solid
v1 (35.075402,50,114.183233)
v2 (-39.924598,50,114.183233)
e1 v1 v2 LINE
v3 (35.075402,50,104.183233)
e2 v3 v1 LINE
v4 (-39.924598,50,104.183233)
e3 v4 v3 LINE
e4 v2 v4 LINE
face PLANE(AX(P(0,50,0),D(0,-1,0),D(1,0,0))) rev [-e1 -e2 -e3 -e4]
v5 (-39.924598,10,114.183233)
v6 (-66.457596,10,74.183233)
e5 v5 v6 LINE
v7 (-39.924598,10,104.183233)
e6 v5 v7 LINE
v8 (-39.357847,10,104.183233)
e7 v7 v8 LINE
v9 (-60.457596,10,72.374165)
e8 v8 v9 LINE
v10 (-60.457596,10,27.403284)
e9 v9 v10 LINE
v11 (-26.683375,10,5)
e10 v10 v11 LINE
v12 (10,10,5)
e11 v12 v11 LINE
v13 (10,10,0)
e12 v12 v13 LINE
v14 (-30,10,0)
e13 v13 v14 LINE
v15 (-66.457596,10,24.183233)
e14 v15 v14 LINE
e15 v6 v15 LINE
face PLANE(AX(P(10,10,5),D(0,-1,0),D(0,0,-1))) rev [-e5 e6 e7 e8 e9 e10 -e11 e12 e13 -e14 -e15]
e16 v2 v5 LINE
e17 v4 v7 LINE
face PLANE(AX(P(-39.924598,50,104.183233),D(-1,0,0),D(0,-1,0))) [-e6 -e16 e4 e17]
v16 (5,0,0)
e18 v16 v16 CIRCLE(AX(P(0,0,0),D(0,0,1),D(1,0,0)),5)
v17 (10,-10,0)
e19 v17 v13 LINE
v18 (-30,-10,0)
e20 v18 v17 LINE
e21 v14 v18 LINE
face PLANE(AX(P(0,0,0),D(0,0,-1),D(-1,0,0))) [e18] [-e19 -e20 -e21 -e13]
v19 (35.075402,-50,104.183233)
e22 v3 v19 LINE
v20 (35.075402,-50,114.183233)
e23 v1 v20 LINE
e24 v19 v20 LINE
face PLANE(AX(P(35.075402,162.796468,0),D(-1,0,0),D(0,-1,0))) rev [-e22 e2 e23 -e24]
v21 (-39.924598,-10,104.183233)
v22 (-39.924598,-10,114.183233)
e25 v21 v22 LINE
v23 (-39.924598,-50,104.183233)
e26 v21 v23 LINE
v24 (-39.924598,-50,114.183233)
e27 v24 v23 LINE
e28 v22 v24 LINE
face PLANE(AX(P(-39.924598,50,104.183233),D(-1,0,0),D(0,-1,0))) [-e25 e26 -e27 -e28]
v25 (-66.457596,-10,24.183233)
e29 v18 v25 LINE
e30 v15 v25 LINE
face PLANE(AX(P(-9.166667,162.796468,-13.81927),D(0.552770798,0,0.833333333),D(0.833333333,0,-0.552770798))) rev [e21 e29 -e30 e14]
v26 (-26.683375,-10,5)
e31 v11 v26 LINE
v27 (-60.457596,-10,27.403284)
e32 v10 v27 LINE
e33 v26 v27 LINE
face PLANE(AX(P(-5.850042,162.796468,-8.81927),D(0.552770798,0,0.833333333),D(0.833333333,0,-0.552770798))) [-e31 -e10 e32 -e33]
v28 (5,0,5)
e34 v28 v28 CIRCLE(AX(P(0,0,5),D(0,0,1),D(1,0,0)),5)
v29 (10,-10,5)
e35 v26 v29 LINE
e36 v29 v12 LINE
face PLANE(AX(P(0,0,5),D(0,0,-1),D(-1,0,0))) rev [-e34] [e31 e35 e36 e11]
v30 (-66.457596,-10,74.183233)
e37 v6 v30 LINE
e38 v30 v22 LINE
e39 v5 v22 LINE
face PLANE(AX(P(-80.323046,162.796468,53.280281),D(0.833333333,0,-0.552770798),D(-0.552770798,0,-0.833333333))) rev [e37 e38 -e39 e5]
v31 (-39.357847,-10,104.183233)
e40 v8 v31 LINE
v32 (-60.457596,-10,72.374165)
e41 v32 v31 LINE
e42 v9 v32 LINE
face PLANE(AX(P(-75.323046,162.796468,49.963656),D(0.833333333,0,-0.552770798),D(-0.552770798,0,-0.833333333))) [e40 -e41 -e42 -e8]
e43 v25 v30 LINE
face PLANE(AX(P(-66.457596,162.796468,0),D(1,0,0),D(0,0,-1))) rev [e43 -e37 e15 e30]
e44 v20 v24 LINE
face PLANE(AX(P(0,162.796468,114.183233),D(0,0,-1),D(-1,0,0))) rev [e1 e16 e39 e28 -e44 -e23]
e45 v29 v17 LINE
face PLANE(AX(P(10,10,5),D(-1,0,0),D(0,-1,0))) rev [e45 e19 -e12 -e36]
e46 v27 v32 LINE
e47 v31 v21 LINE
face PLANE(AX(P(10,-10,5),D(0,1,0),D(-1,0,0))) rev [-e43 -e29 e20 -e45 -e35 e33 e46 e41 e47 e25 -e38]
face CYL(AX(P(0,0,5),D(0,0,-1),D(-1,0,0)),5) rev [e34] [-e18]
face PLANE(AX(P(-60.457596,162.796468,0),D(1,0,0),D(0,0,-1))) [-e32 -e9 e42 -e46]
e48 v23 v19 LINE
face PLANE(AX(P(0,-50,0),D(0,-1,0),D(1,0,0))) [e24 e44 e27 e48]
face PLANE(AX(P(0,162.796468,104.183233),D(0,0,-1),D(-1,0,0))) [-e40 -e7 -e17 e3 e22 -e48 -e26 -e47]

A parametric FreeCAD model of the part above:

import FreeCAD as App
import Part
import Sketcher
from FreeCAD import Vector

doc = App.newDocument("Part")
params = doc.addObject("Spreadsheet::Sheet", "Params")
for row, (alias, value) in enumerate([
    ("sketch1_diameter", "10 mm"),
    ("sketch1_width", "20 mm"),
    ("pad1_length", "5 mm"),
    ("sketch2_width", "20 mm"),
    ("sketch2_height", "5 mm"),
    ("pad2_length", "20 mm"),
    ("sketch3_width", "75 mm"),
    ("sketch3_height", "50 mm"),
    ("sketch3_height2", "5 mm"),
    ("sketch3_height3", "10 mm"),
    ("sketch3_length", "48 mm"),
    ("pad3_length", "20 mm"),
    ("sketch4_width", "75 mm"),
    ("sketch4_height", "10 mm"),
    ("pad4_length", "40 mm"),
    ("pad4_length2", "60 mm"),
], start=1):
    params.set(f"A{row}", alias)
    params.set(f"B{row}", "=" + value)
    params.setAlias(f"B{row}", alias)

body = doc.addObject("PartDesign::Body", "Body")

# Sketch on XY plane
sketch1 = body.newObject("Sketcher::SketchObject", "Sketch")
sketch1.AttachmentSupport = (doc.getObject("XY_Plane"), [""])
sketch1.MapMode = "FlatFace"
sketch1.addGeometry(Part.LineSegment(Vector(-10, 10, 0), Vector(-10, -10, 0)), False)
sketch1.addGeometry(Part.LineSegment(Vector(-10, -10, 0), Vector(10, -10, 0)), False)
sketch1.addGeometry(Part.LineSegment(Vector(10, -10, 0), Vector(10, 10, 0)), False)
sketch1.addGeometry(Part.LineSegment(Vector(10, 10, 0), Vector(-10, 10, 0)), False)
sketch1.addGeometry(Part.Circle(Vector(0, 0, 0), Vector(0, 0, 1), 5), False)
sketch1.addConstraint(Sketcher.Constraint("Coincident", 0, 2, 1, 1))
sketch1.addConstraint(Sketcher.Constraint("Coincident", 1, 2, 2, 1))
sketch1.addConstraint(Sketcher.Constraint("Coincident", 2, 2, 3, 1))
sketch1.addConstraint(Sketcher.Constraint("Coincident", 3, 2, 0, 1))
sketch1.addConstraint(Sketcher.Constraint("Vertical", 0))
sketch1.addConstraint(Sketcher.Constraint("Horizontal", 1))
sketch1.addConstraint(Sketcher.Constraint("Vertical", 2))
sketch1.addConstraint(Sketcher.Constraint("Horizontal", 3))
sketch1.addConstraint(Sketcher.Constraint("Coincident", 4, 3, -1, 1))
sketch1.addConstraint(Sketcher.Constraint("Symmetric", 0, 2, 2, 2, -1, 1))
sketch1.addConstraint(Sketcher.Constraint("Equal", 3, 0))
sketch1.addConstraint(Sketcher.Constraint("Diameter", 4, 10.0))
sketch1.addConstraint(Sketcher.Constraint("DistanceX", 1, 1, 1, 2, 20.0))
sketch1.setExpression("Constraints[11]", "Params.sketch1_diameter")
sketch1.setExpression("Constraints[12]", "Params.sketch1_width")
pad1 = body.newObject("PartDesign::Pad", "Pad")
pad1.Profile = sketch1
pad1.setExpression("Length", "Params.pad1_length")

# Sketch on YZ plane
sketch2 = body.newObject("Sketcher::SketchObject", "Sketch001")
sketch2.AttachmentSupport = (doc.getObject("YZ_Plane"), [""])
sketch2.MapMode = "FlatFace"
sketch2.AttachmentOffset = App.Placement(Vector(0, 0, -10), App.Rotation())
sketch2.addGeometry(Part.LineSegment(Vector(10, 0, 0), Vector(-10, 0, 0)), False)
sketch2.addGeometry(Part.LineSegment(Vector(-10, 0, 0), Vector(-10, 5, 0)), False)
sketch2.addGeometry(Part.LineSegment(Vector(-10, 5, 0), Vector(10, 5, 0)), False)
sketch2.addGeometry(Part.LineSegment(Vector(10, 5, 0), Vector(10, 0, 0)), False)
sketch2.addConstraint(Sketcher.Constraint("Coincident", 0, 2, 1, 1))
sketch2.addConstraint(Sketcher.Constraint("Coincident", 1, 2, 2, 1))
sketch2.addConstraint(Sketcher.Constraint("Coincident", 2, 2, 3, 1))
sketch2.addConstraint(Sketcher.Constraint("Coincident", 3, 2, 0, 1))
sketch2.addConstraint(Sketcher.Constraint("Horizontal", 0))
sketch2.addConstraint(Sketcher.Constraint("Vertical", 1))
sketch2.addConstraint(Sketcher.Constraint("Horizontal", 2))
sketch2.addConstraint(Sketcher.Constraint("Vertical", 3))
sketch2.addConstraint(Sketcher.Constraint("Symmetric", 0, 2, 3, 2, -1, 1))
sketch2.addConstraint(Sketcher.Constraint("DistanceX", 0, 2, 0, 1, 20.0))
sketch2.addConstraint(Sketcher.Constraint("DistanceY", 1, 1, 1, 2, 5.0))
sketch2.setExpression("Constraints[9]", "Params.sketch2_width")
sketch2.setExpression("Constraints[10]", "Params.sketch2_height")
pad2 = body.newObject("PartDesign::Pad", "Pad001")
pad2.Profile = sketch2
pad2.setExpression("Length", "Params.pad2_length")
pad2.Reversed = True

# Sketch on XZ plane
sketch3 = body.newObject("Sketcher::SketchObject", "Sketch002")
sketch3.AttachmentSupport = (doc.getObject("XZ_Plane"), [""])
sketch3.MapMode = "FlatFace"
sketch3.AttachmentOffset = App.Placement(Vector(0, 0, 10), App.Rotation())
sketch3.addGeometry(Part.LineSegment(Vector(35.1, 114.2, 0), Vector(-39.9, 114.2, 0)), False)
sketch3.addGeometry(Part.LineSegment(Vector(-39.9, 114.2, 0), Vector(-66.5, 74.2, 0)), False)
sketch3.addGeometry(Part.LineSegment(Vector(-66.5, 74.2, 0), Vector(-66.5, 24.2, 0)), False)
sketch3.addGeometry(Part.LineSegment(Vector(-66.5, 24.2, 0), Vector(-30, 0, 0)), False)
sketch3.addGeometry(Part.LineSegment(Vector(-30, 0, 0), Vector(-30, 5, 0)), False)
sketch3.addGeometry(Part.LineSegment(Vector(-30, 5, 0), Vector(-26.7, 5, 0)), False)
sketch3.addGeometry(Part.LineSegment(Vector(-26.7, 5, 0), Vector(-60.5, 27.4, 0)), False)
sketch3.addGeometry(Part.LineSegment(Vector(-60.5, 27.4, 0), Vector(-60.5, 72.4, 0)), False)
sketch3.addGeometry(Part.LineSegment(Vector(-60.5, 72.4, 0), Vector(-39.4, 104.2, 0)), False)
sketch3.addGeometry(Part.LineSegment(Vector(-39.4, 104.2, 0), Vector(35.1, 104.2, 0)), False)
sketch3.addGeometry(Part.LineSegment(Vector(35.1, 104.2, 0), Vector(35.1, 114.2, 0)), False)
sketch3.addConstraint(Sketcher.Constraint("Coincident", 0, 2, 1, 1))
sketch3.addConstraint(Sketcher.Constraint("Coincident", 1, 2, 2, 1))
sketch3.addConstraint(Sketcher.Constraint("Coincident", 2, 2, 3, 1))
sketch3.addConstraint(Sketcher.Constraint("Coincident", 3, 2, 4, 1))
sketch3.addConstraint(Sketcher.Constraint("Coincident", 4, 2, 5, 1))
sketch3.addConstraint(Sketcher.Constraint("Coincident", 5, 2, 6, 1))
sketch3.addConstraint(Sketcher.Constraint("Coincident", 6, 2, 7, 1))
sketch3.addConstraint(Sketcher.Constraint("Coincident", 7, 2, 8, 1))
sketch3.addConstraint(Sketcher.Constraint("Coincident", 8, 2, 9, 1))
sketch3.addConstraint(Sketcher.Constraint("Coincident", 9, 2, 10, 1))
sketch3.addConstraint(Sketcher.Constraint("Coincident", 10, 2, 0, 1))
sketch3.addConstraint(Sketcher.Constraint("Horizontal", 0))
sketch3.addConstraint(Sketcher.Constraint("Vertical", 2))
sketch3.addConstraint(Sketcher.Constraint("Vertical", 4))
sketch3.addConstraint(Sketcher.Constraint("Horizontal", 5))
sketch3.addConstraint(Sketcher.Constraint("Vertical", 7))
sketch3.addConstraint(Sketcher.Constraint("Horizontal", 9))
sketch3.addConstraint(Sketcher.Constraint("Vertical", 10))
sketch3.addConstraint(Sketcher.Constraint("PointOnObject", 3, 2, -1))
sketch3.addConstraint(Sketcher.Constraint("Perpendicular", 1, 3))
sketch3.addConstraint(Sketcher.Constraint("Parallel", 3, 6))
sketch3.addConstraint(Sketcher.Constraint("Perpendicular", 6, 8))
sketch3.addConstraint(Sketcher.Constraint("DistanceX", 0, 2, 0, 1, 75.0))
sketch3.addConstraint(Sketcher.Constraint("DistanceY", 2, 2, 2, 1, 50.0))
sketch3.addConstraint(Sketcher.Constraint("DistanceY", 4, 1, 4, 2, 5.0))
sketch3.addConstraint(Sketcher.Constraint("DistanceY", 10, 1, 10, 2, 10.0))
sketch3.addConstraint(Sketcher.Constraint("Distance", 1, 48.0))
sketch3.addConstraint(Sketcher.Constraint("DistanceX", 3, 2, -1, 1, 30.0))
sketch3.addConstraint(Sketcher.Constraint("DistanceY", 1, 2, 0, 2, 40.0))
sketch3.addConstraint(Sketcher.Constraint("DistanceX", 2, 2, 6, 2, 6.0))
sketch3.addConstraint(Sketcher.Constraint("DistanceX", 9, 1, 9, 2, 74.43325))
sketch3.addConstraint(Sketcher.Constraint("DistanceY", 7, 1, 7, 2, 44.970882))
sketch3.addConstraint(Sketcher.Constraint("DistanceX", 2, 2, 5, 2, 39.774221))
sketch3.setExpression("Constraints[22]", "Params.sketch3_width")
sketch3.setExpression("Constraints[23]", "Params.sketch3_height")
sketch3.setExpression("Constraints[24]", "Params.sketch3_height2")
sketch3.setExpression("Constraints[25]", "Params.sketch3_height3")
sketch3.setExpression("Constraints[26]", "Params.sketch3_length")
pad3 = body.newObject("PartDesign::Pad", "Pad002")
pad3.Profile = sketch3
pad3.setExpression("Length", "Params.pad3_length")
pad3.Reversed = True

# Sketch on XZ plane
sketch4 = body.newObject("Sketcher::SketchObject", "Sketch003")
sketch4.AttachmentSupport = (doc.getObject("XZ_Plane"), [""])
sketch4.MapMode = "FlatFace"
sketch4.AttachmentOffset = App.Placement(Vector(0, 0, 10), App.Rotation())
sketch4.addGeometry(Part.LineSegment(Vector(-40, 114, 0), Vector(-40, 104, 0)), False)
sketch4.addGeometry(Part.LineSegment(Vector(-40, 104, 0), Vector(35, 104, 0)), False)
sketch4.addGeometry(Part.LineSegment(Vector(35, 104, 0), Vector(35, 114, 0)), False)
sketch4.addGeometry(Part.LineSegment(Vector(35, 114, 0), Vector(-40, 114, 0)), False)
sketch4.addConstraint(Sketcher.Constraint("Coincident", 0, 2, 1, 1))
sketch4.addConstraint(Sketcher.Constraint("Coincident", 1, 2, 2, 1))
sketch4.addConstraint(Sketcher.Constraint("Coincident", 2, 2, 3, 1))
sketch4.addConstraint(Sketcher.Constraint("Coincident", 3, 2, 0, 1))
sketch4.addConstraint(Sketcher.Constraint("Vertical", 0))
sketch4.addConstraint(Sketcher.Constraint("Horizontal", 1))
sketch4.addConstraint(Sketcher.Constraint("Vertical", 2))
sketch4.addConstraint(Sketcher.Constraint("Horizontal", 3))
sketch4.addConstraint(Sketcher.Constraint("DistanceX", 1, 1, 1, 2, 75.0))
sketch4.addConstraint(Sketcher.Constraint("DistanceY", 0, 2, 0, 1, 10.0))
sketch4.addConstraint(Sketcher.Constraint("DistanceX", 0, 2, -1, 1, 39.924598))
sketch4.addConstraint(Sketcher.Constraint("DistanceY", -1, 1, 0, 2, 104.183233))
sketch4.setExpression("Constraints[8]", "Params.sketch4_width")
sketch4.setExpression("Constraints[9]", "Params.sketch4_height")
pad4 = body.newObject("PartDesign::Pad", "Pad003")
pad4.Profile = sketch4
pad4.Type = "TwoLengths"
pad4.setExpression("Length", "Params.pad4_length")
pad4.setExpression("Length2", "Params.pad4_length2")

doc.recompute()
